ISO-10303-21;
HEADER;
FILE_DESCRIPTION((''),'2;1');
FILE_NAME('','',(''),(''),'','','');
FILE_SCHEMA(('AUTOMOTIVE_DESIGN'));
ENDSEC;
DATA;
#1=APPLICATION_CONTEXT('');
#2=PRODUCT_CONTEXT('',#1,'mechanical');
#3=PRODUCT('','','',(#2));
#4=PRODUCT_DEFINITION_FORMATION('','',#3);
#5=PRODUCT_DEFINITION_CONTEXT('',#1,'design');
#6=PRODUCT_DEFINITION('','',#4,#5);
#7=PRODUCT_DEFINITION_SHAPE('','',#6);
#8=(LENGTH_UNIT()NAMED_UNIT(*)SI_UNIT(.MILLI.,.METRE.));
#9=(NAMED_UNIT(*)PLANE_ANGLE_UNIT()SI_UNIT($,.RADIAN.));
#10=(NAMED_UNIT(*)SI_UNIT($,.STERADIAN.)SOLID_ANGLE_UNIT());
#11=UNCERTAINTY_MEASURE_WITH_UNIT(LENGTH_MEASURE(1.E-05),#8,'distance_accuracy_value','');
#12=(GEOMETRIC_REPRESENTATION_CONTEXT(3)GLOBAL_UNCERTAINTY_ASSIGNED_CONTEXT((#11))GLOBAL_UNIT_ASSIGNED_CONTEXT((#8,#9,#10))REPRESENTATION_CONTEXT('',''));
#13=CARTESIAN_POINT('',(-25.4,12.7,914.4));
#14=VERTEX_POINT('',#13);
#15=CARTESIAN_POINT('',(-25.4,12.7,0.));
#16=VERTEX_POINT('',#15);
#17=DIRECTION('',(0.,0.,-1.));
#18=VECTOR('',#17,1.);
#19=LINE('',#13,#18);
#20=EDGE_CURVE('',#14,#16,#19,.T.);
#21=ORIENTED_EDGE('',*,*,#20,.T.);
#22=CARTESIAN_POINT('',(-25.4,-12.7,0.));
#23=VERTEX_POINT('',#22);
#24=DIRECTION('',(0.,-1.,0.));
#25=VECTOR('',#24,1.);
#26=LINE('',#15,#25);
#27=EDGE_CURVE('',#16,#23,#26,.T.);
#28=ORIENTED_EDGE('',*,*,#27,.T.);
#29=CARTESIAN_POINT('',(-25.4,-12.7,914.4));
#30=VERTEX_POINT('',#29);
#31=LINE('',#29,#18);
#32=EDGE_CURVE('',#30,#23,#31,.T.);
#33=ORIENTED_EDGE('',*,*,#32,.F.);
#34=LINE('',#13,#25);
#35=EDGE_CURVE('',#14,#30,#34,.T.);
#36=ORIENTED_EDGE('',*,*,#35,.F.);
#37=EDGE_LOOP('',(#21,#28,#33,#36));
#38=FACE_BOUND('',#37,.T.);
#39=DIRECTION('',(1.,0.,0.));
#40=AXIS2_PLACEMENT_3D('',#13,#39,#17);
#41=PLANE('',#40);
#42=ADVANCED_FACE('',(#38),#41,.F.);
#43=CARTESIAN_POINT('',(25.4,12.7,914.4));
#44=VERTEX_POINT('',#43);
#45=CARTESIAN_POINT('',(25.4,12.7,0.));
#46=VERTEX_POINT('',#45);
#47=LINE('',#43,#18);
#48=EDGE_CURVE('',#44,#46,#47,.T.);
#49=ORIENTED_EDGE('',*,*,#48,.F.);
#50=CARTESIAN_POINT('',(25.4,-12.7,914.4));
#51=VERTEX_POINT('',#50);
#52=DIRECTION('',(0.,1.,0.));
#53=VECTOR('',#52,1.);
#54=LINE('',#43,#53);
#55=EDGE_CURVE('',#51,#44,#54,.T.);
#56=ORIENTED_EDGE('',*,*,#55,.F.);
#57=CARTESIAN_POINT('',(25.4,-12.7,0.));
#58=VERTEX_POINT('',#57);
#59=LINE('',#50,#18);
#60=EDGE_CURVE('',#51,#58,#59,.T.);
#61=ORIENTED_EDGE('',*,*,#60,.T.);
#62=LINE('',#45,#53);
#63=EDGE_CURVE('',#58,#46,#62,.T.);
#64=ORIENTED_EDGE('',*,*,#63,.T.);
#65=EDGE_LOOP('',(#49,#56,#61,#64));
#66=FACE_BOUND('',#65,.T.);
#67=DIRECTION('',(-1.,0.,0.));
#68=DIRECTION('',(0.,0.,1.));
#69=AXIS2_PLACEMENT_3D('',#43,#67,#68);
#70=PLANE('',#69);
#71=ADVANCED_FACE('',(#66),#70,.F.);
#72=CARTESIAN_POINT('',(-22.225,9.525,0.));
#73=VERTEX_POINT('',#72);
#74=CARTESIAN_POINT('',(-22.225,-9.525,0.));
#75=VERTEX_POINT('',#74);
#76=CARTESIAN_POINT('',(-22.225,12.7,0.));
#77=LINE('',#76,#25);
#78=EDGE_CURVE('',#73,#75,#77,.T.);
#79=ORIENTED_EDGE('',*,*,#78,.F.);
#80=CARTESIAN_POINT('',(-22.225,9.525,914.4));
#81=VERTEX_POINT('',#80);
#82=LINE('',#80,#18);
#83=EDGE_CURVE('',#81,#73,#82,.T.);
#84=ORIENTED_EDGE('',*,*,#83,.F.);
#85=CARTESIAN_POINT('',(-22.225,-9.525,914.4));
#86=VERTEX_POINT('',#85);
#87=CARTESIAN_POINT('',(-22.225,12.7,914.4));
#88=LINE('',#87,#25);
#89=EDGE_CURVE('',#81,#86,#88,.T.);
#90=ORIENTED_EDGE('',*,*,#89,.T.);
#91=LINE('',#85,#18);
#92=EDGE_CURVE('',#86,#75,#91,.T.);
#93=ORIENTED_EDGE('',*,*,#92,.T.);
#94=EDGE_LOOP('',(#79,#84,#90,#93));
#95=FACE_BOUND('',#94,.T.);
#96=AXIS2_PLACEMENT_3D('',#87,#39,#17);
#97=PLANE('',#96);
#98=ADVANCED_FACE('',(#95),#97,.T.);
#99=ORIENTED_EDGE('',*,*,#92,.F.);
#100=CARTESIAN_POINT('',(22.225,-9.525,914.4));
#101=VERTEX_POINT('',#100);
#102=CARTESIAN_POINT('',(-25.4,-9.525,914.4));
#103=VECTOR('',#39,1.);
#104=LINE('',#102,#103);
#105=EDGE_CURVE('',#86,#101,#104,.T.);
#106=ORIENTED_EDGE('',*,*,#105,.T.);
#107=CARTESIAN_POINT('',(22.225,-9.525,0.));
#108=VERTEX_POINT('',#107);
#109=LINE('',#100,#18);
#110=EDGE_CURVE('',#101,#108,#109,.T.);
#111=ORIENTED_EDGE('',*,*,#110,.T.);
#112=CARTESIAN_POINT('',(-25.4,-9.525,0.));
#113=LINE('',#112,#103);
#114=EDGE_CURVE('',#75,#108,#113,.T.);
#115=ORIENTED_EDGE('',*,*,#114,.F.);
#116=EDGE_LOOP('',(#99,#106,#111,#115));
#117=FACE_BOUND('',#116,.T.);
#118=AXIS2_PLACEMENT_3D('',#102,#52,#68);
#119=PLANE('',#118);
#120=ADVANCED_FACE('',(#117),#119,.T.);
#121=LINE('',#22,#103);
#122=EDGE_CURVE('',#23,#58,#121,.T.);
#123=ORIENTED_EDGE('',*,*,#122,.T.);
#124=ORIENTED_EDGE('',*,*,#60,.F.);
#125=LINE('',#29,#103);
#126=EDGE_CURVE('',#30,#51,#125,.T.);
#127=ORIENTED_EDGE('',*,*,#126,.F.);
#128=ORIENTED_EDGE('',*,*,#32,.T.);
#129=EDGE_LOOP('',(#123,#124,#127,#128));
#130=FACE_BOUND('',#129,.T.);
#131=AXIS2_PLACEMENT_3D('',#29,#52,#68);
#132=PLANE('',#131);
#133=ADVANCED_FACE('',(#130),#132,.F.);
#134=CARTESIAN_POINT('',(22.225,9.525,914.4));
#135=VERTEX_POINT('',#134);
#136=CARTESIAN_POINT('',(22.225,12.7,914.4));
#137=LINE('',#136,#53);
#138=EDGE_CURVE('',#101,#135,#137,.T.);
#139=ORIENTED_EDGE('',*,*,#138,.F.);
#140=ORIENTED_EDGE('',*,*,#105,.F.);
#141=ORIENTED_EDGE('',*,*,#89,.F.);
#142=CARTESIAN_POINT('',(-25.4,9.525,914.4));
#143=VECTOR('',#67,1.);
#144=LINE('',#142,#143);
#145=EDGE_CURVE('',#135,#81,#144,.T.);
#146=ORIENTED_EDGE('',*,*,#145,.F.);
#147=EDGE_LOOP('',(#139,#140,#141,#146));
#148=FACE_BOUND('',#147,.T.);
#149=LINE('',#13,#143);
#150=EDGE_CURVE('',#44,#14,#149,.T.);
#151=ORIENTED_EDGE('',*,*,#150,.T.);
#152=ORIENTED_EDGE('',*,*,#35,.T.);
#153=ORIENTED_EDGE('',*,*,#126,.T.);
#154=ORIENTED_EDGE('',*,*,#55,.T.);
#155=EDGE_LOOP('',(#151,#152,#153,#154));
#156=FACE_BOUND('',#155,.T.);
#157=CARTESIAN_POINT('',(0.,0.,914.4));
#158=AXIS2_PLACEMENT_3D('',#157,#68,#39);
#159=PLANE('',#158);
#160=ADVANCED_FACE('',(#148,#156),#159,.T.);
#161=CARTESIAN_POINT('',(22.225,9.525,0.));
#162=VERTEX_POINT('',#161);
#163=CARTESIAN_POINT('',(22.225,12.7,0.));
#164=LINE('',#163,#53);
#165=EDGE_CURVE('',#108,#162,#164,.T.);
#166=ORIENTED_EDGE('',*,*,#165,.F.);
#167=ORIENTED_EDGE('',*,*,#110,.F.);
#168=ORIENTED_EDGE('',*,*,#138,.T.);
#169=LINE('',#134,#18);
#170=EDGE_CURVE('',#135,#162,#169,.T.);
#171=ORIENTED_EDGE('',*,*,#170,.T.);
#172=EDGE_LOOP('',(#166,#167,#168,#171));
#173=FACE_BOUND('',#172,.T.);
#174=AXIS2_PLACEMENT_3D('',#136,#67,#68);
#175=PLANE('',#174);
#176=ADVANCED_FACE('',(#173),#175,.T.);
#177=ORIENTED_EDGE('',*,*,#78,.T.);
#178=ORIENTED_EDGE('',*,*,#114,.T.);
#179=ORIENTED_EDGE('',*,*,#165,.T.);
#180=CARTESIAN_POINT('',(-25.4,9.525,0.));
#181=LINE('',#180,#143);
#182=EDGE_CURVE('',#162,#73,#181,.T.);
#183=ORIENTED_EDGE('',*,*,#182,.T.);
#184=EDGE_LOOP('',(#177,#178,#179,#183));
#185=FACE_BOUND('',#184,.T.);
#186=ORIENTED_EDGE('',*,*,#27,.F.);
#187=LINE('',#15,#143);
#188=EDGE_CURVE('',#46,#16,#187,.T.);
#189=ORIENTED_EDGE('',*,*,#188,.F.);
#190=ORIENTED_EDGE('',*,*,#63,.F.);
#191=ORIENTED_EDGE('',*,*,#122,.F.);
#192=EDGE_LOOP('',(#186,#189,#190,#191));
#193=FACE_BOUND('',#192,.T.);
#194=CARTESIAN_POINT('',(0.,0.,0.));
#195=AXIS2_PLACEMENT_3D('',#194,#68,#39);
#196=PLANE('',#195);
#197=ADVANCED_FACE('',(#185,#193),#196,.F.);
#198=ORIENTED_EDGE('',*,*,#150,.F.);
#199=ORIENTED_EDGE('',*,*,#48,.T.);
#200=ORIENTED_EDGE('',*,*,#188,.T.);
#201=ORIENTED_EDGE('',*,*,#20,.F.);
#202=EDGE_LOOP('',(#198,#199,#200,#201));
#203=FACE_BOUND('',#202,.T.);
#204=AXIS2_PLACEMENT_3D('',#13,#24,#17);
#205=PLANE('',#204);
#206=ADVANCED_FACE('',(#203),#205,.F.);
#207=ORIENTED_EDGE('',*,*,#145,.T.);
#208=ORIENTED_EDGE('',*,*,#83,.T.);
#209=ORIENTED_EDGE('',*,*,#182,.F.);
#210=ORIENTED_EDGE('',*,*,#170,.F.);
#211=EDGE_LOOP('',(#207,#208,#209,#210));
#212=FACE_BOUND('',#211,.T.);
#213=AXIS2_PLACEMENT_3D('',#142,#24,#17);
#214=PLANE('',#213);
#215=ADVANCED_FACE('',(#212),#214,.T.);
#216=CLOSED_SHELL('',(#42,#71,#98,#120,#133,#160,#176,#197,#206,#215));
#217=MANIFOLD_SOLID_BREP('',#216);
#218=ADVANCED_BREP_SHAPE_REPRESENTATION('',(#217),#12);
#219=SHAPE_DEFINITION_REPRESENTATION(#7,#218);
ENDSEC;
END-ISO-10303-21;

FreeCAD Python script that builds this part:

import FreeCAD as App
import Part
import Sketcher

V = App.Vector
Q = App.Units.Quantity


def faces_at(feature, points):
    """Names of the faces that lie closest to the given points."""
    faces = feature.Shape.Faces
    near = lambda p: min(range(len(faces)), key=lambda i: faces[i].distToShape(Part.Vertex(*p))[0])
    return sorted({f"Face{near(p) + 1}" for p in points})


def add_polygon(sketch, points):
    """Adds a closed chain of lines whose ends are joined by coincident constraints."""
    first, n = sketch.GeometryCount, len(points)
    for a, b in zip(points, points[1:] + points[:1]):
        sketch.addGeometry(Part.LineSegment(App.Vector(*a, 0), App.Vector(*b, 0)), False)
    for i in range(n):
        sketch.addConstraint(Sketcher.Constraint("Coincident", first + i, 2, first + (i + 1) % n, 1))

doc = App.newDocument("Part")
body = doc.addObject("PartDesign::Body", "Body")

sketch1 = body.newObject("Sketcher::SketchObject", "Sketch")
sketch1.AttachmentSupport = (doc.getObject("XY_Plane"), [""])
sketch1.MapMode = "FlatFace"
add_polygon(sketch1, [(-25, 13), (-25, -13), (25, -13), (25, 13)])
sketch1.addConstraint([
    Sketcher.Constraint("Vertical", 0),
    Sketcher.Constraint("Horizontal", 1),
    Sketcher.Constraint("Vertical", 2),
    Sketcher.Constraint("Horizontal", 3),
    Sketcher.Constraint("Symmetric", 0, 2, 2, 2, -1, 1),
    Sketcher.Constraint("DistanceX", 1, 1, 1, 2, Q("2 in")),
    Sketcher.Constraint("DistanceY", 0, 2, 0, 1, Q("1 in")),
])
pad1 = body.newObject("PartDesign::Pad", "Pad")
pad1.Profile = sketch1
pad1.Length = Q("36 in")
doc.recompute()

thickness = body.newObject("PartDesign::Thickness", "Thickness")
thickness.Base = (pad1, faces_at(pad1, [(0, 0, 914.4), (0, 0, 0)]))
thickness.Value = Q("0.125 in")
thickness.Reversed = True
thickness.Join = "Intersection"

doc.recompute()
